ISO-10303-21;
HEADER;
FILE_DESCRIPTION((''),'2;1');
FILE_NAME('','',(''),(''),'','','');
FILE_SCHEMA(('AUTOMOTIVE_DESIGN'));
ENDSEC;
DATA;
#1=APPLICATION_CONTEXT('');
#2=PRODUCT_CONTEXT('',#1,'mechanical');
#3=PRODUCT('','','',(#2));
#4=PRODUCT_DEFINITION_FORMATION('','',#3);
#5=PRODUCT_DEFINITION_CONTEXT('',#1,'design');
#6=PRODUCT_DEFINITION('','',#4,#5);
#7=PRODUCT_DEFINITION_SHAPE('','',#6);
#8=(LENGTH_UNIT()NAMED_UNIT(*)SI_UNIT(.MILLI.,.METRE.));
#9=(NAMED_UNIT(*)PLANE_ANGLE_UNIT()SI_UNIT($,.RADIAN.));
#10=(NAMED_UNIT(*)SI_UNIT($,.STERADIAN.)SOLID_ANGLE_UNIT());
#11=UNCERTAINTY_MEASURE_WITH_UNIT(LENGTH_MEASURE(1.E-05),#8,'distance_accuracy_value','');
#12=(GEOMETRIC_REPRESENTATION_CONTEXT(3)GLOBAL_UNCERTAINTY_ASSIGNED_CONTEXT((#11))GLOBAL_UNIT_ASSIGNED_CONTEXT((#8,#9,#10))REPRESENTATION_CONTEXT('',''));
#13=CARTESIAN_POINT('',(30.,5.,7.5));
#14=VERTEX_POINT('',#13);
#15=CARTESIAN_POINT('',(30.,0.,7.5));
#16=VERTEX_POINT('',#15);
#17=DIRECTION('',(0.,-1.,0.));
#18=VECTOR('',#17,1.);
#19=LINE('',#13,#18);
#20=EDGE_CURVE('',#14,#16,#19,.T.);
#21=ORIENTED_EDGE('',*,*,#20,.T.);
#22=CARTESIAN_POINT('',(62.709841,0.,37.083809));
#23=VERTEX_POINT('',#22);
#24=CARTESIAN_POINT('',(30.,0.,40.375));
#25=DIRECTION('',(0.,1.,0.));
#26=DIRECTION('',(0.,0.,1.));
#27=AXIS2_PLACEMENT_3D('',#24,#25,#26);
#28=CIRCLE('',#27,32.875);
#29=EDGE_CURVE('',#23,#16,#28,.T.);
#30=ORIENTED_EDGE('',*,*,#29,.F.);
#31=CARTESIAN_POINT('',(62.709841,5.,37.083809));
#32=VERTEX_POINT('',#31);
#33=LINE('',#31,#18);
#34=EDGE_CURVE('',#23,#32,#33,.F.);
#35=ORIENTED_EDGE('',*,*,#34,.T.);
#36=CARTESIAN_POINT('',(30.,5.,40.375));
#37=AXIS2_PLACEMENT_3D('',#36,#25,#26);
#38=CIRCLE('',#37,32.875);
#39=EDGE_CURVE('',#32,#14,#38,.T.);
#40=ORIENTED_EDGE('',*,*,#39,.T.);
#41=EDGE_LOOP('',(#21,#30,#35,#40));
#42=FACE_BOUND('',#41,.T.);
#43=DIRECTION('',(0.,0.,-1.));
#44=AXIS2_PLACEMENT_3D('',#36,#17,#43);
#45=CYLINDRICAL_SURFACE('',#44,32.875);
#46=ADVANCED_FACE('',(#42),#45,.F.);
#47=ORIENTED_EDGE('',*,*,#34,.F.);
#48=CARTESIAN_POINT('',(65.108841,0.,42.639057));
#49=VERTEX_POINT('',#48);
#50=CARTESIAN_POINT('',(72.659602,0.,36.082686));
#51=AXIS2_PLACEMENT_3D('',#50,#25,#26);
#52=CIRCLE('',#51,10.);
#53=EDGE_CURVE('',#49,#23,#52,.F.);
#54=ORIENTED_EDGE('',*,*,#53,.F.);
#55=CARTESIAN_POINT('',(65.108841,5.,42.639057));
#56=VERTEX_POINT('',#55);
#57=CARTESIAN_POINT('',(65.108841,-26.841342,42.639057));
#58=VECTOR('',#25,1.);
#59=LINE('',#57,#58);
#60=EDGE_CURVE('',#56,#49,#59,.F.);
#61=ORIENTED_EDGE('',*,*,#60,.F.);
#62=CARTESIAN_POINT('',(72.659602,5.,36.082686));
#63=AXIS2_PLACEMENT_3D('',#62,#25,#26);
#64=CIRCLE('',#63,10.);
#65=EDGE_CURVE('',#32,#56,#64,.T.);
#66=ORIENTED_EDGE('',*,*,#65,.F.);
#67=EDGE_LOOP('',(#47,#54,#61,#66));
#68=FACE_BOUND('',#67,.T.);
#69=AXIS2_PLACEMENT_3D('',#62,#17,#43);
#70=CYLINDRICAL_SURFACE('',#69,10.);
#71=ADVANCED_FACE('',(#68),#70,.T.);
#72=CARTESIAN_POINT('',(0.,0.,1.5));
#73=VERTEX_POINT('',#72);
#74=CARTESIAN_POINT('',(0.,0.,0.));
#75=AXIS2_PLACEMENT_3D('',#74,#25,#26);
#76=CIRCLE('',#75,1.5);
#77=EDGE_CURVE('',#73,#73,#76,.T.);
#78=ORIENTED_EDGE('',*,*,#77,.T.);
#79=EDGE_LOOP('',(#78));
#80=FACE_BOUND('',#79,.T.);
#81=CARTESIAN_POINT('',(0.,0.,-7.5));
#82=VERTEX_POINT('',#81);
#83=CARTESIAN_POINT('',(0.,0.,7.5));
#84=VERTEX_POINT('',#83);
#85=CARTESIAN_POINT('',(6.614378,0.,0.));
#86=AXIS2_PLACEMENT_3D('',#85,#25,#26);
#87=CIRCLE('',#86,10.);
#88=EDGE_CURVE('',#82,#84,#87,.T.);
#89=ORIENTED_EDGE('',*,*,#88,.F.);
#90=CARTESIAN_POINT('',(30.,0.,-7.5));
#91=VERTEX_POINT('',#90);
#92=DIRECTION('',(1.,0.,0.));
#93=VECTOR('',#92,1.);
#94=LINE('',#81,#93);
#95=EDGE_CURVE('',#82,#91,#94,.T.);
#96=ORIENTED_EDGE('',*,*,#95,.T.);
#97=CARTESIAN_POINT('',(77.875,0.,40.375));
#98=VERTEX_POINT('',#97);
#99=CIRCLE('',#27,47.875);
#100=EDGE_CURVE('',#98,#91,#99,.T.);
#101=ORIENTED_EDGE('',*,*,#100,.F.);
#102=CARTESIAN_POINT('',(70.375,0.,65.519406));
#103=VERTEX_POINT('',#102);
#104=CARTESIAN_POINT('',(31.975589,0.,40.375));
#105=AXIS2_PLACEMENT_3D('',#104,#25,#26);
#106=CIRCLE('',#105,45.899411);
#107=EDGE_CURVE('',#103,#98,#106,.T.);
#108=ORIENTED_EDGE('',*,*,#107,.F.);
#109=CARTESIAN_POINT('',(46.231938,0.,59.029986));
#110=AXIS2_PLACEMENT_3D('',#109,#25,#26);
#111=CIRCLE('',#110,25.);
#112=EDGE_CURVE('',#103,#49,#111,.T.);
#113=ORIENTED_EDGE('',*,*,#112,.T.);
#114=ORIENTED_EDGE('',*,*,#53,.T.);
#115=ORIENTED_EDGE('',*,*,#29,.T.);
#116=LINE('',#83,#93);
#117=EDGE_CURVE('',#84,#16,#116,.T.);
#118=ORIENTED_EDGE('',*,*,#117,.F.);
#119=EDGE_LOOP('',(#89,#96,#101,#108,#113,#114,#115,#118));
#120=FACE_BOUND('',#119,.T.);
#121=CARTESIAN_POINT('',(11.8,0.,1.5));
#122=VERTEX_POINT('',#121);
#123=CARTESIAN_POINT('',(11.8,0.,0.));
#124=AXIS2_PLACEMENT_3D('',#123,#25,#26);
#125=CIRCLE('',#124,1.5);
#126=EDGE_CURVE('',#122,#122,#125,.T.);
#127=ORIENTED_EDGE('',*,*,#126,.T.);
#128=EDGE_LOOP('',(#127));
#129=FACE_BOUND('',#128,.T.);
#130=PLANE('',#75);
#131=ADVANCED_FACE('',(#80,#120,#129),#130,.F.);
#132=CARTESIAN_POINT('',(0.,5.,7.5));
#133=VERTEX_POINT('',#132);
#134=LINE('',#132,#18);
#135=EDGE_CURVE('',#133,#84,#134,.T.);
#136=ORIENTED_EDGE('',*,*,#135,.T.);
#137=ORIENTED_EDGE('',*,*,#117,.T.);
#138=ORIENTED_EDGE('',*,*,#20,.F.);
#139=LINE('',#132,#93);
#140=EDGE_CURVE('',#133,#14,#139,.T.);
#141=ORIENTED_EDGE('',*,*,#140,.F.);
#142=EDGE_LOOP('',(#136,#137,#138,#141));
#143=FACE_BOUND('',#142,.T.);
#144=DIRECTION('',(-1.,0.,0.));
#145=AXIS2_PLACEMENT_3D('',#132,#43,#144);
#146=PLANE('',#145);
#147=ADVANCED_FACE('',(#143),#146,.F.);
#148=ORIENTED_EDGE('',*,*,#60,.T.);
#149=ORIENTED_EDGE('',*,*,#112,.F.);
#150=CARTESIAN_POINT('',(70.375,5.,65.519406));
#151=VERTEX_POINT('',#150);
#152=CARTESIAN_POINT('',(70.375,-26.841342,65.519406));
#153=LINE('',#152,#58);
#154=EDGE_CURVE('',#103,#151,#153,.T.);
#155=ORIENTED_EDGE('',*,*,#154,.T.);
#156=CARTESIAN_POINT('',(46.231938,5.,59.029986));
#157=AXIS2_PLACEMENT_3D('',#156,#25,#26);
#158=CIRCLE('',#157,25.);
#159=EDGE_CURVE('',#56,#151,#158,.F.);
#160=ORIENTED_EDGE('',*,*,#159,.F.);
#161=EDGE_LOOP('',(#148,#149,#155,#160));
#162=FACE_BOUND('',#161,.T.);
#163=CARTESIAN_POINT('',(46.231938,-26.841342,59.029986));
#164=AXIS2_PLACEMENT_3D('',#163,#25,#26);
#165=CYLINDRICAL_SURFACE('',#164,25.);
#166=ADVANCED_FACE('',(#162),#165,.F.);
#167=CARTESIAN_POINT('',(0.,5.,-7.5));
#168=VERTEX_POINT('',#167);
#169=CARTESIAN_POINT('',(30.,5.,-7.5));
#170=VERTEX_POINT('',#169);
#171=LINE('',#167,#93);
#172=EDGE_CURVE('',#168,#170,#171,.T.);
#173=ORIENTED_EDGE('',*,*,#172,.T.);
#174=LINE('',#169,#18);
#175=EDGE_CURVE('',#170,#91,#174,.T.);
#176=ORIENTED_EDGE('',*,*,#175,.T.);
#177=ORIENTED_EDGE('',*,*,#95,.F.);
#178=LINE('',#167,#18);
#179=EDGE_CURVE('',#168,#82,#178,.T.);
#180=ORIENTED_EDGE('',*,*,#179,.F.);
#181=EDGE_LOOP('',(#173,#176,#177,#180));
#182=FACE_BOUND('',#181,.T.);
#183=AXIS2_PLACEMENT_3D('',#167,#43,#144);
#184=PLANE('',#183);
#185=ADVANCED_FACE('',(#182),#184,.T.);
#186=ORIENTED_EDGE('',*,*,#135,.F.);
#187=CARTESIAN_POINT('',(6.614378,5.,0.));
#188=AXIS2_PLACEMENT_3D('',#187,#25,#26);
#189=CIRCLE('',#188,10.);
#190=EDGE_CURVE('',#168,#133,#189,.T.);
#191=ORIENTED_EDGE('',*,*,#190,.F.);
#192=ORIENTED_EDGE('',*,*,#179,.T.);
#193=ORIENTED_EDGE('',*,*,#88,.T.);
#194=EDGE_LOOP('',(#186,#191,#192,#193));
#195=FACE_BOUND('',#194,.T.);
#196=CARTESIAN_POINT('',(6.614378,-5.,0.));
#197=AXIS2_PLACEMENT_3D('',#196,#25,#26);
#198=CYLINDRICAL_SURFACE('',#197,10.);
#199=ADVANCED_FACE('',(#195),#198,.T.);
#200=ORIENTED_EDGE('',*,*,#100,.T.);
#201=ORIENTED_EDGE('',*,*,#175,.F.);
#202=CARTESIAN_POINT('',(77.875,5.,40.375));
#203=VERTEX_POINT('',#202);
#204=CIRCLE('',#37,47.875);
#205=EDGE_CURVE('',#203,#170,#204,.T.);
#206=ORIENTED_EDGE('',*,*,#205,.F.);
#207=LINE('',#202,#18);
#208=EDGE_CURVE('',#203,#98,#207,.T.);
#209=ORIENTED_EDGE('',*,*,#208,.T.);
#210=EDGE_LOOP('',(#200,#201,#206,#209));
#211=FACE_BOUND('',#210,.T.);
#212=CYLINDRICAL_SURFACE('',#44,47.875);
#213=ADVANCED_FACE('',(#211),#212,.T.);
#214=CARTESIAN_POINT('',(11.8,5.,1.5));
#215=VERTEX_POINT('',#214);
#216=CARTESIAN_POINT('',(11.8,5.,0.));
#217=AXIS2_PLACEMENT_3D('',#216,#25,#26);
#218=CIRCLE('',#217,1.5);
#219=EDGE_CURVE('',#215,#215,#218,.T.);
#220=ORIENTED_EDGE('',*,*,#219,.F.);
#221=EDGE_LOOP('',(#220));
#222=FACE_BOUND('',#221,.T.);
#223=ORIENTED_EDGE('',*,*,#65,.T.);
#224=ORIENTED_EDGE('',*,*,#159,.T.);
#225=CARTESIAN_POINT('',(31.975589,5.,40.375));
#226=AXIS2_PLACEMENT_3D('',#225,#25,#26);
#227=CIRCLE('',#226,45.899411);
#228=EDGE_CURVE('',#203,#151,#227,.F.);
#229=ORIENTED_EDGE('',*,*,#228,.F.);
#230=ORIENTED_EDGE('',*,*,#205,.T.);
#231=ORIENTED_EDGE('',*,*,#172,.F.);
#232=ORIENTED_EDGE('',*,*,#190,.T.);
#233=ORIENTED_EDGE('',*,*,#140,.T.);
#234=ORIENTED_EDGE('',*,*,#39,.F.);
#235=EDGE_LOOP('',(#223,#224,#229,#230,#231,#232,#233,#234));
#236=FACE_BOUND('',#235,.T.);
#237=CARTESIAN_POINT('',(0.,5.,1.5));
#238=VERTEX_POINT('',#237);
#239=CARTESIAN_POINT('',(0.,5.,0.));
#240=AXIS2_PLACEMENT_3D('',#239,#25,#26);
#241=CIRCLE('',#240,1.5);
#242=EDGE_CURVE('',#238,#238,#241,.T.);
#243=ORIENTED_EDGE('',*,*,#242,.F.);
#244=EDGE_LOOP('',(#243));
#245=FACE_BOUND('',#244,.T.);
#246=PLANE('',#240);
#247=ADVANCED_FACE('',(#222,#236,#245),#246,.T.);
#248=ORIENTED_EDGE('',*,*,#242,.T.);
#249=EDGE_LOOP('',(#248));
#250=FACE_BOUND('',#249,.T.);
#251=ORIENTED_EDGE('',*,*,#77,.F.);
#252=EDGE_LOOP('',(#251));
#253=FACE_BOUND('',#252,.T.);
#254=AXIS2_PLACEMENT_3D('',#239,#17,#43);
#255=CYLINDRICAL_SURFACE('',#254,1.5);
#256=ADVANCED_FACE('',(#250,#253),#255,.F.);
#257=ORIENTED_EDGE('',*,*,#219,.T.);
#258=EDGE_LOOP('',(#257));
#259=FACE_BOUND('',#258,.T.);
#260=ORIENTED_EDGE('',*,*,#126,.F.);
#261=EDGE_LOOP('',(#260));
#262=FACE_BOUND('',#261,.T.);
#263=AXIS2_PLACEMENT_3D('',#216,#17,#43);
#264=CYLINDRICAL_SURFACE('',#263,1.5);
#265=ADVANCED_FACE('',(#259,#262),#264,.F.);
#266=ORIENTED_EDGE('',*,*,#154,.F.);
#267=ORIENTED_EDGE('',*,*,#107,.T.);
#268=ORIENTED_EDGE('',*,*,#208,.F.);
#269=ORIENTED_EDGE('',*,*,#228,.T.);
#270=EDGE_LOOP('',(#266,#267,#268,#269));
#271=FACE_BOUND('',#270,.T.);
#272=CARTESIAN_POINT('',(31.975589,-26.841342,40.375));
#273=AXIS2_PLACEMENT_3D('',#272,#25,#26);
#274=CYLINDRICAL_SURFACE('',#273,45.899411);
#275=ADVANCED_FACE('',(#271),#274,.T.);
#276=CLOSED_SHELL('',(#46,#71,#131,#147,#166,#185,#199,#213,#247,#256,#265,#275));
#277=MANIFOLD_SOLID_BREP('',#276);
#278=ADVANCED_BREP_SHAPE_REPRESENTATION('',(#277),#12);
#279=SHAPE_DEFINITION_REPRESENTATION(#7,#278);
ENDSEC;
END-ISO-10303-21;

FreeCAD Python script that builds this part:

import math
import FreeCAD as App
import Part
import Sketcher

V = App.Vector


def edges_at(feature, points):
    """Names of the edges that pass closest to the given points."""
    edges = feature.Shape.Edges
    near = lambda p: min(range(len(edges)), key=lambda i: edges[i].distToShape(Part.Vertex(*p))[0])
    return sorted({f"Edge{near(p) + 1}" for p in points})

doc = App.newDocument("Part")
body = doc.addObject("PartDesign::Body", "Body")

sketch1 = body.newObject("Sketcher::SketchObject", "Sketch")
sketch1.AttachmentSupport = (doc.getObject("XZ_Plane"), [""])
sketch1.MapMode = "FlatFace"
sketch1.addGeometry([
    Part.LineSegment(V(30, -7.5, 0), V(0, -7.5, 0)),
    Part.ArcOfCircle(Part.Circle(V(0, 0, 0), V(0, 0, 1), 7.5), math.radians(90), math.radians(270)),
    Part.LineSegment(V(0, 7.5, 0), V(30, 7.5, 0)),
    Part.ArcOfCircle(Part.Circle(V(30, 40.375, 0), V(0, 0, 1), 32.875), math.radians(-90), math.radians(0)),
    Part.ArcOfCircle(Part.Circle(V(70.375, 40.375, 0), V(0, 0, 1), 7.5), math.radians(0), math.radians(180)),
    Part.ArcOfCircle(Part.Circle(V(30, 40.375, 0), V(0, 0, 1), 47.875), math.radians(-90), math.radians(0)),
    Part.Circle(V(11.8, 0, 0), V(0, 0, 1), 1.5),
    Part.Circle(V(0, 0, 0), V(0, 0, 1), 1.5),
], False)
sketch1.addConstraint([
    Sketcher.Constraint("Tangent", 0, 2, 1, 2),
    Sketcher.Constraint("Tangent", 1, 1, 2, 1),
    Sketcher.Constraint("Tangent", 2, 2, 3, 1),
    Sketcher.Constraint("Tangent", 3, 2, 4, 2),
    Sketcher.Constraint("Tangent", 4, 1, 5, 2),
    Sketcher.Constraint("Tangent", 5, 1, 0, 1),
    Sketcher.Constraint("Horizontal", 0),
    Sketcher.Constraint("Horizontal", 2),
    Sketcher.Constraint("Coincident", 1, 3, -1, 1),
    Sketcher.Constraint("Coincident", 7, 3, -1, 1),
    Sketcher.Constraint("Coincident", 5, 3, 3, 3),
    Sketcher.Constraint("Equal", 6, 7),
    Sketcher.Constraint("PointOnObject", 6, 3, -1),
    Sketcher.Constraint("Horizontal", 3, 3, 4, 3),
    Sketcher.Constraint("Diameter", 6, 3.0),
    Sketcher.Constraint("Radius", 1, 7.5),
    Sketcher.Constraint("DistanceX", 0, 2, 0, 1, 30.0),
    Sketcher.Constraint("Radius", 3, 32.875),
    Sketcher.Constraint("DistanceX", -1, 1, 6, 3, 11.8),
])
pad1 = body.newObject("PartDesign::Pad", "Pad")
pad1.Profile = sketch1
pad1.Length = 5
pad1.Reversed = True

sketch2 = body.newObject("Sketcher::SketchObject", "Sketch001")
sketch2.AttachmentSupport = (doc.getObject("XZ_Plane"), [""])
sketch2.MapMode = "FlatFace"
sketch2.AttachmentOffset = App.Placement(V(0, 0, -5), App.Rotation())
sketch2.addGeometry([
    Part.ArcOfCircle(Part.Circle(V(0, 0, 0), V(0, 0, 1), 7.5), math.radians(90), math.radians(270)),
    Part.ArcOfCircle(Part.Circle(V(6.614378, 0, 0), V(0, 0, 1), 10), math.radians(131.409622), math.radians(228.590378)),
], False)
sketch2.addConstraint([
    Sketcher.Constraint("Coincident", 0, 1, 1, 1),
    Sketcher.Constraint("Coincident", 1, 2, 0, 2),
    Sketcher.Constraint("Coincident", 0, 3, -1, 1),
    Sketcher.Constraint("PointOnObject", 1, 3, -1),
    Sketcher.Constraint("PointOnObject", 0, 1, -2),
    Sketcher.Constraint("Radius", 1, 10.0),
    Sketcher.Constraint("Radius", 0, 7.5),
])
pocket1 = body.newObject("PartDesign::Pocket", "Pocket")
pocket1.Profile = sketch2
pocket1.Length = 10
pocket1.Reversed = True

sketch3 = body.newObject("Sketcher::SketchObject", "Sketch002")
sketch3.AttachmentSupport = (doc.getObject("XZ_Plane"), [""])
sketch3.MapMode = "FlatFace"
sketch3.AttachmentOffset = App.Placement(V(0, 0, -5), App.Rotation())
sketch3.addGeometry([
    Part.ArcOfCircle(Part.Circle(V(70.375, 40.375, 0), V(0, 0, 1), 7.5), math.radians(0), math.radians(104.614539)),
    Part.ArcOfCircle(Part.Circle(V(46.231938, 59.029986, 0), V(0, 0, 1), 25), math.radians(-27.123236), math.radians(15.044953)),
    Part.ArcOfCircle(Part.Circle(V(31.975589, 40.375, 0), V(0, 0, 1), 45.899411), math.radians(0), math.radians(33.217272)),
], False)
sketch3.addConstraint([
    Sketcher.Constraint("Coincident", 0, 2, 1, 1),
    Sketcher.Constraint("Coincident", 1, 2, 2, 2),
    Sketcher.Constraint("Tangent", 2, 1, 0, 1),
    Sketcher.Constraint("Horizontal", 0, 3, 2, 3),
    Sketcher.Constraint("Vertical", 0, 3, 1, 2),
    Sketcher.Constraint("Radius", 1, 25.0),
    Sketcher.Constraint("Radius", 0, 7.5),
    Sketcher.Constraint("Radius", 2, 45.899411),
    Sketcher.Constraint("DistanceX", -1, 1, 0, 3, 70.375),
    Sketcher.Constraint("DistanceY", -1, 1, 0, 3, 40.375),
    Sketcher.Constraint("DistanceX", 1, 3, 0, 2, 22.2507),
])
pad2 = body.newObject("PartDesign::Pad", "Pad001")
pad2.Profile = sketch3
pad2.Length = 5

sketch4 = body.newObject("Sketcher::SketchObject", "Sketch003")
sketch4.AttachmentSupport = (doc.getObject("XZ_Plane"), [""])
sketch4.MapMode = "FlatFace"
sketch4.AttachmentOffset = App.Placement(V(0, 0, -5), App.Rotation())
sketch4.addGeometry([
    Part.ArcOfCircle(Part.Circle(V(70.375, 40.375, 0), V(0, 0, 1), 7.5), math.radians(104.614539), math.radians(180)),
    Part.ArcOfCircle(Part.Circle(V(46.231938, 59.029986, 0), V(0, 0, 1), 25), math.radians(-48.262225), math.radians(-27.123236)),
], False)
sketch4.addConstraint([
    Sketcher.Constraint("Coincident", 0, 1, 1, 2),
    Sketcher.Constraint("Coincident", 1, 1, 0, 2),
    Sketcher.Constraint("Horizontal", 0, 3, 1, 1),
    Sketcher.Constraint("Radius", 1, 25.0),
    Sketcher.Constraint("Radius", 0, 7.5),
    Sketcher.Constraint("DistanceX", -1, 1, 0, 3, 70.375),
    Sketcher.Constraint("DistanceY", -1, 1, 0, 3, 40.375),
    Sketcher.Constraint("DistanceX", 1, 3, 0, 1, 22.2507),
])
pocket2 = body.newObject("PartDesign::Pocket", "Pocket001")
pocket2.Profile = sketch4
pocket2.Length = 10
pocket2.Reversed = True
doc.recompute()

fillet = body.newObject("PartDesign::Fillet", "Fillet")
fillet.Base = (pocket2, edges_at(pocket2, [(62.875, 2.5, 40.375)]))
fillet.Radius = 10

doc.recompute()
